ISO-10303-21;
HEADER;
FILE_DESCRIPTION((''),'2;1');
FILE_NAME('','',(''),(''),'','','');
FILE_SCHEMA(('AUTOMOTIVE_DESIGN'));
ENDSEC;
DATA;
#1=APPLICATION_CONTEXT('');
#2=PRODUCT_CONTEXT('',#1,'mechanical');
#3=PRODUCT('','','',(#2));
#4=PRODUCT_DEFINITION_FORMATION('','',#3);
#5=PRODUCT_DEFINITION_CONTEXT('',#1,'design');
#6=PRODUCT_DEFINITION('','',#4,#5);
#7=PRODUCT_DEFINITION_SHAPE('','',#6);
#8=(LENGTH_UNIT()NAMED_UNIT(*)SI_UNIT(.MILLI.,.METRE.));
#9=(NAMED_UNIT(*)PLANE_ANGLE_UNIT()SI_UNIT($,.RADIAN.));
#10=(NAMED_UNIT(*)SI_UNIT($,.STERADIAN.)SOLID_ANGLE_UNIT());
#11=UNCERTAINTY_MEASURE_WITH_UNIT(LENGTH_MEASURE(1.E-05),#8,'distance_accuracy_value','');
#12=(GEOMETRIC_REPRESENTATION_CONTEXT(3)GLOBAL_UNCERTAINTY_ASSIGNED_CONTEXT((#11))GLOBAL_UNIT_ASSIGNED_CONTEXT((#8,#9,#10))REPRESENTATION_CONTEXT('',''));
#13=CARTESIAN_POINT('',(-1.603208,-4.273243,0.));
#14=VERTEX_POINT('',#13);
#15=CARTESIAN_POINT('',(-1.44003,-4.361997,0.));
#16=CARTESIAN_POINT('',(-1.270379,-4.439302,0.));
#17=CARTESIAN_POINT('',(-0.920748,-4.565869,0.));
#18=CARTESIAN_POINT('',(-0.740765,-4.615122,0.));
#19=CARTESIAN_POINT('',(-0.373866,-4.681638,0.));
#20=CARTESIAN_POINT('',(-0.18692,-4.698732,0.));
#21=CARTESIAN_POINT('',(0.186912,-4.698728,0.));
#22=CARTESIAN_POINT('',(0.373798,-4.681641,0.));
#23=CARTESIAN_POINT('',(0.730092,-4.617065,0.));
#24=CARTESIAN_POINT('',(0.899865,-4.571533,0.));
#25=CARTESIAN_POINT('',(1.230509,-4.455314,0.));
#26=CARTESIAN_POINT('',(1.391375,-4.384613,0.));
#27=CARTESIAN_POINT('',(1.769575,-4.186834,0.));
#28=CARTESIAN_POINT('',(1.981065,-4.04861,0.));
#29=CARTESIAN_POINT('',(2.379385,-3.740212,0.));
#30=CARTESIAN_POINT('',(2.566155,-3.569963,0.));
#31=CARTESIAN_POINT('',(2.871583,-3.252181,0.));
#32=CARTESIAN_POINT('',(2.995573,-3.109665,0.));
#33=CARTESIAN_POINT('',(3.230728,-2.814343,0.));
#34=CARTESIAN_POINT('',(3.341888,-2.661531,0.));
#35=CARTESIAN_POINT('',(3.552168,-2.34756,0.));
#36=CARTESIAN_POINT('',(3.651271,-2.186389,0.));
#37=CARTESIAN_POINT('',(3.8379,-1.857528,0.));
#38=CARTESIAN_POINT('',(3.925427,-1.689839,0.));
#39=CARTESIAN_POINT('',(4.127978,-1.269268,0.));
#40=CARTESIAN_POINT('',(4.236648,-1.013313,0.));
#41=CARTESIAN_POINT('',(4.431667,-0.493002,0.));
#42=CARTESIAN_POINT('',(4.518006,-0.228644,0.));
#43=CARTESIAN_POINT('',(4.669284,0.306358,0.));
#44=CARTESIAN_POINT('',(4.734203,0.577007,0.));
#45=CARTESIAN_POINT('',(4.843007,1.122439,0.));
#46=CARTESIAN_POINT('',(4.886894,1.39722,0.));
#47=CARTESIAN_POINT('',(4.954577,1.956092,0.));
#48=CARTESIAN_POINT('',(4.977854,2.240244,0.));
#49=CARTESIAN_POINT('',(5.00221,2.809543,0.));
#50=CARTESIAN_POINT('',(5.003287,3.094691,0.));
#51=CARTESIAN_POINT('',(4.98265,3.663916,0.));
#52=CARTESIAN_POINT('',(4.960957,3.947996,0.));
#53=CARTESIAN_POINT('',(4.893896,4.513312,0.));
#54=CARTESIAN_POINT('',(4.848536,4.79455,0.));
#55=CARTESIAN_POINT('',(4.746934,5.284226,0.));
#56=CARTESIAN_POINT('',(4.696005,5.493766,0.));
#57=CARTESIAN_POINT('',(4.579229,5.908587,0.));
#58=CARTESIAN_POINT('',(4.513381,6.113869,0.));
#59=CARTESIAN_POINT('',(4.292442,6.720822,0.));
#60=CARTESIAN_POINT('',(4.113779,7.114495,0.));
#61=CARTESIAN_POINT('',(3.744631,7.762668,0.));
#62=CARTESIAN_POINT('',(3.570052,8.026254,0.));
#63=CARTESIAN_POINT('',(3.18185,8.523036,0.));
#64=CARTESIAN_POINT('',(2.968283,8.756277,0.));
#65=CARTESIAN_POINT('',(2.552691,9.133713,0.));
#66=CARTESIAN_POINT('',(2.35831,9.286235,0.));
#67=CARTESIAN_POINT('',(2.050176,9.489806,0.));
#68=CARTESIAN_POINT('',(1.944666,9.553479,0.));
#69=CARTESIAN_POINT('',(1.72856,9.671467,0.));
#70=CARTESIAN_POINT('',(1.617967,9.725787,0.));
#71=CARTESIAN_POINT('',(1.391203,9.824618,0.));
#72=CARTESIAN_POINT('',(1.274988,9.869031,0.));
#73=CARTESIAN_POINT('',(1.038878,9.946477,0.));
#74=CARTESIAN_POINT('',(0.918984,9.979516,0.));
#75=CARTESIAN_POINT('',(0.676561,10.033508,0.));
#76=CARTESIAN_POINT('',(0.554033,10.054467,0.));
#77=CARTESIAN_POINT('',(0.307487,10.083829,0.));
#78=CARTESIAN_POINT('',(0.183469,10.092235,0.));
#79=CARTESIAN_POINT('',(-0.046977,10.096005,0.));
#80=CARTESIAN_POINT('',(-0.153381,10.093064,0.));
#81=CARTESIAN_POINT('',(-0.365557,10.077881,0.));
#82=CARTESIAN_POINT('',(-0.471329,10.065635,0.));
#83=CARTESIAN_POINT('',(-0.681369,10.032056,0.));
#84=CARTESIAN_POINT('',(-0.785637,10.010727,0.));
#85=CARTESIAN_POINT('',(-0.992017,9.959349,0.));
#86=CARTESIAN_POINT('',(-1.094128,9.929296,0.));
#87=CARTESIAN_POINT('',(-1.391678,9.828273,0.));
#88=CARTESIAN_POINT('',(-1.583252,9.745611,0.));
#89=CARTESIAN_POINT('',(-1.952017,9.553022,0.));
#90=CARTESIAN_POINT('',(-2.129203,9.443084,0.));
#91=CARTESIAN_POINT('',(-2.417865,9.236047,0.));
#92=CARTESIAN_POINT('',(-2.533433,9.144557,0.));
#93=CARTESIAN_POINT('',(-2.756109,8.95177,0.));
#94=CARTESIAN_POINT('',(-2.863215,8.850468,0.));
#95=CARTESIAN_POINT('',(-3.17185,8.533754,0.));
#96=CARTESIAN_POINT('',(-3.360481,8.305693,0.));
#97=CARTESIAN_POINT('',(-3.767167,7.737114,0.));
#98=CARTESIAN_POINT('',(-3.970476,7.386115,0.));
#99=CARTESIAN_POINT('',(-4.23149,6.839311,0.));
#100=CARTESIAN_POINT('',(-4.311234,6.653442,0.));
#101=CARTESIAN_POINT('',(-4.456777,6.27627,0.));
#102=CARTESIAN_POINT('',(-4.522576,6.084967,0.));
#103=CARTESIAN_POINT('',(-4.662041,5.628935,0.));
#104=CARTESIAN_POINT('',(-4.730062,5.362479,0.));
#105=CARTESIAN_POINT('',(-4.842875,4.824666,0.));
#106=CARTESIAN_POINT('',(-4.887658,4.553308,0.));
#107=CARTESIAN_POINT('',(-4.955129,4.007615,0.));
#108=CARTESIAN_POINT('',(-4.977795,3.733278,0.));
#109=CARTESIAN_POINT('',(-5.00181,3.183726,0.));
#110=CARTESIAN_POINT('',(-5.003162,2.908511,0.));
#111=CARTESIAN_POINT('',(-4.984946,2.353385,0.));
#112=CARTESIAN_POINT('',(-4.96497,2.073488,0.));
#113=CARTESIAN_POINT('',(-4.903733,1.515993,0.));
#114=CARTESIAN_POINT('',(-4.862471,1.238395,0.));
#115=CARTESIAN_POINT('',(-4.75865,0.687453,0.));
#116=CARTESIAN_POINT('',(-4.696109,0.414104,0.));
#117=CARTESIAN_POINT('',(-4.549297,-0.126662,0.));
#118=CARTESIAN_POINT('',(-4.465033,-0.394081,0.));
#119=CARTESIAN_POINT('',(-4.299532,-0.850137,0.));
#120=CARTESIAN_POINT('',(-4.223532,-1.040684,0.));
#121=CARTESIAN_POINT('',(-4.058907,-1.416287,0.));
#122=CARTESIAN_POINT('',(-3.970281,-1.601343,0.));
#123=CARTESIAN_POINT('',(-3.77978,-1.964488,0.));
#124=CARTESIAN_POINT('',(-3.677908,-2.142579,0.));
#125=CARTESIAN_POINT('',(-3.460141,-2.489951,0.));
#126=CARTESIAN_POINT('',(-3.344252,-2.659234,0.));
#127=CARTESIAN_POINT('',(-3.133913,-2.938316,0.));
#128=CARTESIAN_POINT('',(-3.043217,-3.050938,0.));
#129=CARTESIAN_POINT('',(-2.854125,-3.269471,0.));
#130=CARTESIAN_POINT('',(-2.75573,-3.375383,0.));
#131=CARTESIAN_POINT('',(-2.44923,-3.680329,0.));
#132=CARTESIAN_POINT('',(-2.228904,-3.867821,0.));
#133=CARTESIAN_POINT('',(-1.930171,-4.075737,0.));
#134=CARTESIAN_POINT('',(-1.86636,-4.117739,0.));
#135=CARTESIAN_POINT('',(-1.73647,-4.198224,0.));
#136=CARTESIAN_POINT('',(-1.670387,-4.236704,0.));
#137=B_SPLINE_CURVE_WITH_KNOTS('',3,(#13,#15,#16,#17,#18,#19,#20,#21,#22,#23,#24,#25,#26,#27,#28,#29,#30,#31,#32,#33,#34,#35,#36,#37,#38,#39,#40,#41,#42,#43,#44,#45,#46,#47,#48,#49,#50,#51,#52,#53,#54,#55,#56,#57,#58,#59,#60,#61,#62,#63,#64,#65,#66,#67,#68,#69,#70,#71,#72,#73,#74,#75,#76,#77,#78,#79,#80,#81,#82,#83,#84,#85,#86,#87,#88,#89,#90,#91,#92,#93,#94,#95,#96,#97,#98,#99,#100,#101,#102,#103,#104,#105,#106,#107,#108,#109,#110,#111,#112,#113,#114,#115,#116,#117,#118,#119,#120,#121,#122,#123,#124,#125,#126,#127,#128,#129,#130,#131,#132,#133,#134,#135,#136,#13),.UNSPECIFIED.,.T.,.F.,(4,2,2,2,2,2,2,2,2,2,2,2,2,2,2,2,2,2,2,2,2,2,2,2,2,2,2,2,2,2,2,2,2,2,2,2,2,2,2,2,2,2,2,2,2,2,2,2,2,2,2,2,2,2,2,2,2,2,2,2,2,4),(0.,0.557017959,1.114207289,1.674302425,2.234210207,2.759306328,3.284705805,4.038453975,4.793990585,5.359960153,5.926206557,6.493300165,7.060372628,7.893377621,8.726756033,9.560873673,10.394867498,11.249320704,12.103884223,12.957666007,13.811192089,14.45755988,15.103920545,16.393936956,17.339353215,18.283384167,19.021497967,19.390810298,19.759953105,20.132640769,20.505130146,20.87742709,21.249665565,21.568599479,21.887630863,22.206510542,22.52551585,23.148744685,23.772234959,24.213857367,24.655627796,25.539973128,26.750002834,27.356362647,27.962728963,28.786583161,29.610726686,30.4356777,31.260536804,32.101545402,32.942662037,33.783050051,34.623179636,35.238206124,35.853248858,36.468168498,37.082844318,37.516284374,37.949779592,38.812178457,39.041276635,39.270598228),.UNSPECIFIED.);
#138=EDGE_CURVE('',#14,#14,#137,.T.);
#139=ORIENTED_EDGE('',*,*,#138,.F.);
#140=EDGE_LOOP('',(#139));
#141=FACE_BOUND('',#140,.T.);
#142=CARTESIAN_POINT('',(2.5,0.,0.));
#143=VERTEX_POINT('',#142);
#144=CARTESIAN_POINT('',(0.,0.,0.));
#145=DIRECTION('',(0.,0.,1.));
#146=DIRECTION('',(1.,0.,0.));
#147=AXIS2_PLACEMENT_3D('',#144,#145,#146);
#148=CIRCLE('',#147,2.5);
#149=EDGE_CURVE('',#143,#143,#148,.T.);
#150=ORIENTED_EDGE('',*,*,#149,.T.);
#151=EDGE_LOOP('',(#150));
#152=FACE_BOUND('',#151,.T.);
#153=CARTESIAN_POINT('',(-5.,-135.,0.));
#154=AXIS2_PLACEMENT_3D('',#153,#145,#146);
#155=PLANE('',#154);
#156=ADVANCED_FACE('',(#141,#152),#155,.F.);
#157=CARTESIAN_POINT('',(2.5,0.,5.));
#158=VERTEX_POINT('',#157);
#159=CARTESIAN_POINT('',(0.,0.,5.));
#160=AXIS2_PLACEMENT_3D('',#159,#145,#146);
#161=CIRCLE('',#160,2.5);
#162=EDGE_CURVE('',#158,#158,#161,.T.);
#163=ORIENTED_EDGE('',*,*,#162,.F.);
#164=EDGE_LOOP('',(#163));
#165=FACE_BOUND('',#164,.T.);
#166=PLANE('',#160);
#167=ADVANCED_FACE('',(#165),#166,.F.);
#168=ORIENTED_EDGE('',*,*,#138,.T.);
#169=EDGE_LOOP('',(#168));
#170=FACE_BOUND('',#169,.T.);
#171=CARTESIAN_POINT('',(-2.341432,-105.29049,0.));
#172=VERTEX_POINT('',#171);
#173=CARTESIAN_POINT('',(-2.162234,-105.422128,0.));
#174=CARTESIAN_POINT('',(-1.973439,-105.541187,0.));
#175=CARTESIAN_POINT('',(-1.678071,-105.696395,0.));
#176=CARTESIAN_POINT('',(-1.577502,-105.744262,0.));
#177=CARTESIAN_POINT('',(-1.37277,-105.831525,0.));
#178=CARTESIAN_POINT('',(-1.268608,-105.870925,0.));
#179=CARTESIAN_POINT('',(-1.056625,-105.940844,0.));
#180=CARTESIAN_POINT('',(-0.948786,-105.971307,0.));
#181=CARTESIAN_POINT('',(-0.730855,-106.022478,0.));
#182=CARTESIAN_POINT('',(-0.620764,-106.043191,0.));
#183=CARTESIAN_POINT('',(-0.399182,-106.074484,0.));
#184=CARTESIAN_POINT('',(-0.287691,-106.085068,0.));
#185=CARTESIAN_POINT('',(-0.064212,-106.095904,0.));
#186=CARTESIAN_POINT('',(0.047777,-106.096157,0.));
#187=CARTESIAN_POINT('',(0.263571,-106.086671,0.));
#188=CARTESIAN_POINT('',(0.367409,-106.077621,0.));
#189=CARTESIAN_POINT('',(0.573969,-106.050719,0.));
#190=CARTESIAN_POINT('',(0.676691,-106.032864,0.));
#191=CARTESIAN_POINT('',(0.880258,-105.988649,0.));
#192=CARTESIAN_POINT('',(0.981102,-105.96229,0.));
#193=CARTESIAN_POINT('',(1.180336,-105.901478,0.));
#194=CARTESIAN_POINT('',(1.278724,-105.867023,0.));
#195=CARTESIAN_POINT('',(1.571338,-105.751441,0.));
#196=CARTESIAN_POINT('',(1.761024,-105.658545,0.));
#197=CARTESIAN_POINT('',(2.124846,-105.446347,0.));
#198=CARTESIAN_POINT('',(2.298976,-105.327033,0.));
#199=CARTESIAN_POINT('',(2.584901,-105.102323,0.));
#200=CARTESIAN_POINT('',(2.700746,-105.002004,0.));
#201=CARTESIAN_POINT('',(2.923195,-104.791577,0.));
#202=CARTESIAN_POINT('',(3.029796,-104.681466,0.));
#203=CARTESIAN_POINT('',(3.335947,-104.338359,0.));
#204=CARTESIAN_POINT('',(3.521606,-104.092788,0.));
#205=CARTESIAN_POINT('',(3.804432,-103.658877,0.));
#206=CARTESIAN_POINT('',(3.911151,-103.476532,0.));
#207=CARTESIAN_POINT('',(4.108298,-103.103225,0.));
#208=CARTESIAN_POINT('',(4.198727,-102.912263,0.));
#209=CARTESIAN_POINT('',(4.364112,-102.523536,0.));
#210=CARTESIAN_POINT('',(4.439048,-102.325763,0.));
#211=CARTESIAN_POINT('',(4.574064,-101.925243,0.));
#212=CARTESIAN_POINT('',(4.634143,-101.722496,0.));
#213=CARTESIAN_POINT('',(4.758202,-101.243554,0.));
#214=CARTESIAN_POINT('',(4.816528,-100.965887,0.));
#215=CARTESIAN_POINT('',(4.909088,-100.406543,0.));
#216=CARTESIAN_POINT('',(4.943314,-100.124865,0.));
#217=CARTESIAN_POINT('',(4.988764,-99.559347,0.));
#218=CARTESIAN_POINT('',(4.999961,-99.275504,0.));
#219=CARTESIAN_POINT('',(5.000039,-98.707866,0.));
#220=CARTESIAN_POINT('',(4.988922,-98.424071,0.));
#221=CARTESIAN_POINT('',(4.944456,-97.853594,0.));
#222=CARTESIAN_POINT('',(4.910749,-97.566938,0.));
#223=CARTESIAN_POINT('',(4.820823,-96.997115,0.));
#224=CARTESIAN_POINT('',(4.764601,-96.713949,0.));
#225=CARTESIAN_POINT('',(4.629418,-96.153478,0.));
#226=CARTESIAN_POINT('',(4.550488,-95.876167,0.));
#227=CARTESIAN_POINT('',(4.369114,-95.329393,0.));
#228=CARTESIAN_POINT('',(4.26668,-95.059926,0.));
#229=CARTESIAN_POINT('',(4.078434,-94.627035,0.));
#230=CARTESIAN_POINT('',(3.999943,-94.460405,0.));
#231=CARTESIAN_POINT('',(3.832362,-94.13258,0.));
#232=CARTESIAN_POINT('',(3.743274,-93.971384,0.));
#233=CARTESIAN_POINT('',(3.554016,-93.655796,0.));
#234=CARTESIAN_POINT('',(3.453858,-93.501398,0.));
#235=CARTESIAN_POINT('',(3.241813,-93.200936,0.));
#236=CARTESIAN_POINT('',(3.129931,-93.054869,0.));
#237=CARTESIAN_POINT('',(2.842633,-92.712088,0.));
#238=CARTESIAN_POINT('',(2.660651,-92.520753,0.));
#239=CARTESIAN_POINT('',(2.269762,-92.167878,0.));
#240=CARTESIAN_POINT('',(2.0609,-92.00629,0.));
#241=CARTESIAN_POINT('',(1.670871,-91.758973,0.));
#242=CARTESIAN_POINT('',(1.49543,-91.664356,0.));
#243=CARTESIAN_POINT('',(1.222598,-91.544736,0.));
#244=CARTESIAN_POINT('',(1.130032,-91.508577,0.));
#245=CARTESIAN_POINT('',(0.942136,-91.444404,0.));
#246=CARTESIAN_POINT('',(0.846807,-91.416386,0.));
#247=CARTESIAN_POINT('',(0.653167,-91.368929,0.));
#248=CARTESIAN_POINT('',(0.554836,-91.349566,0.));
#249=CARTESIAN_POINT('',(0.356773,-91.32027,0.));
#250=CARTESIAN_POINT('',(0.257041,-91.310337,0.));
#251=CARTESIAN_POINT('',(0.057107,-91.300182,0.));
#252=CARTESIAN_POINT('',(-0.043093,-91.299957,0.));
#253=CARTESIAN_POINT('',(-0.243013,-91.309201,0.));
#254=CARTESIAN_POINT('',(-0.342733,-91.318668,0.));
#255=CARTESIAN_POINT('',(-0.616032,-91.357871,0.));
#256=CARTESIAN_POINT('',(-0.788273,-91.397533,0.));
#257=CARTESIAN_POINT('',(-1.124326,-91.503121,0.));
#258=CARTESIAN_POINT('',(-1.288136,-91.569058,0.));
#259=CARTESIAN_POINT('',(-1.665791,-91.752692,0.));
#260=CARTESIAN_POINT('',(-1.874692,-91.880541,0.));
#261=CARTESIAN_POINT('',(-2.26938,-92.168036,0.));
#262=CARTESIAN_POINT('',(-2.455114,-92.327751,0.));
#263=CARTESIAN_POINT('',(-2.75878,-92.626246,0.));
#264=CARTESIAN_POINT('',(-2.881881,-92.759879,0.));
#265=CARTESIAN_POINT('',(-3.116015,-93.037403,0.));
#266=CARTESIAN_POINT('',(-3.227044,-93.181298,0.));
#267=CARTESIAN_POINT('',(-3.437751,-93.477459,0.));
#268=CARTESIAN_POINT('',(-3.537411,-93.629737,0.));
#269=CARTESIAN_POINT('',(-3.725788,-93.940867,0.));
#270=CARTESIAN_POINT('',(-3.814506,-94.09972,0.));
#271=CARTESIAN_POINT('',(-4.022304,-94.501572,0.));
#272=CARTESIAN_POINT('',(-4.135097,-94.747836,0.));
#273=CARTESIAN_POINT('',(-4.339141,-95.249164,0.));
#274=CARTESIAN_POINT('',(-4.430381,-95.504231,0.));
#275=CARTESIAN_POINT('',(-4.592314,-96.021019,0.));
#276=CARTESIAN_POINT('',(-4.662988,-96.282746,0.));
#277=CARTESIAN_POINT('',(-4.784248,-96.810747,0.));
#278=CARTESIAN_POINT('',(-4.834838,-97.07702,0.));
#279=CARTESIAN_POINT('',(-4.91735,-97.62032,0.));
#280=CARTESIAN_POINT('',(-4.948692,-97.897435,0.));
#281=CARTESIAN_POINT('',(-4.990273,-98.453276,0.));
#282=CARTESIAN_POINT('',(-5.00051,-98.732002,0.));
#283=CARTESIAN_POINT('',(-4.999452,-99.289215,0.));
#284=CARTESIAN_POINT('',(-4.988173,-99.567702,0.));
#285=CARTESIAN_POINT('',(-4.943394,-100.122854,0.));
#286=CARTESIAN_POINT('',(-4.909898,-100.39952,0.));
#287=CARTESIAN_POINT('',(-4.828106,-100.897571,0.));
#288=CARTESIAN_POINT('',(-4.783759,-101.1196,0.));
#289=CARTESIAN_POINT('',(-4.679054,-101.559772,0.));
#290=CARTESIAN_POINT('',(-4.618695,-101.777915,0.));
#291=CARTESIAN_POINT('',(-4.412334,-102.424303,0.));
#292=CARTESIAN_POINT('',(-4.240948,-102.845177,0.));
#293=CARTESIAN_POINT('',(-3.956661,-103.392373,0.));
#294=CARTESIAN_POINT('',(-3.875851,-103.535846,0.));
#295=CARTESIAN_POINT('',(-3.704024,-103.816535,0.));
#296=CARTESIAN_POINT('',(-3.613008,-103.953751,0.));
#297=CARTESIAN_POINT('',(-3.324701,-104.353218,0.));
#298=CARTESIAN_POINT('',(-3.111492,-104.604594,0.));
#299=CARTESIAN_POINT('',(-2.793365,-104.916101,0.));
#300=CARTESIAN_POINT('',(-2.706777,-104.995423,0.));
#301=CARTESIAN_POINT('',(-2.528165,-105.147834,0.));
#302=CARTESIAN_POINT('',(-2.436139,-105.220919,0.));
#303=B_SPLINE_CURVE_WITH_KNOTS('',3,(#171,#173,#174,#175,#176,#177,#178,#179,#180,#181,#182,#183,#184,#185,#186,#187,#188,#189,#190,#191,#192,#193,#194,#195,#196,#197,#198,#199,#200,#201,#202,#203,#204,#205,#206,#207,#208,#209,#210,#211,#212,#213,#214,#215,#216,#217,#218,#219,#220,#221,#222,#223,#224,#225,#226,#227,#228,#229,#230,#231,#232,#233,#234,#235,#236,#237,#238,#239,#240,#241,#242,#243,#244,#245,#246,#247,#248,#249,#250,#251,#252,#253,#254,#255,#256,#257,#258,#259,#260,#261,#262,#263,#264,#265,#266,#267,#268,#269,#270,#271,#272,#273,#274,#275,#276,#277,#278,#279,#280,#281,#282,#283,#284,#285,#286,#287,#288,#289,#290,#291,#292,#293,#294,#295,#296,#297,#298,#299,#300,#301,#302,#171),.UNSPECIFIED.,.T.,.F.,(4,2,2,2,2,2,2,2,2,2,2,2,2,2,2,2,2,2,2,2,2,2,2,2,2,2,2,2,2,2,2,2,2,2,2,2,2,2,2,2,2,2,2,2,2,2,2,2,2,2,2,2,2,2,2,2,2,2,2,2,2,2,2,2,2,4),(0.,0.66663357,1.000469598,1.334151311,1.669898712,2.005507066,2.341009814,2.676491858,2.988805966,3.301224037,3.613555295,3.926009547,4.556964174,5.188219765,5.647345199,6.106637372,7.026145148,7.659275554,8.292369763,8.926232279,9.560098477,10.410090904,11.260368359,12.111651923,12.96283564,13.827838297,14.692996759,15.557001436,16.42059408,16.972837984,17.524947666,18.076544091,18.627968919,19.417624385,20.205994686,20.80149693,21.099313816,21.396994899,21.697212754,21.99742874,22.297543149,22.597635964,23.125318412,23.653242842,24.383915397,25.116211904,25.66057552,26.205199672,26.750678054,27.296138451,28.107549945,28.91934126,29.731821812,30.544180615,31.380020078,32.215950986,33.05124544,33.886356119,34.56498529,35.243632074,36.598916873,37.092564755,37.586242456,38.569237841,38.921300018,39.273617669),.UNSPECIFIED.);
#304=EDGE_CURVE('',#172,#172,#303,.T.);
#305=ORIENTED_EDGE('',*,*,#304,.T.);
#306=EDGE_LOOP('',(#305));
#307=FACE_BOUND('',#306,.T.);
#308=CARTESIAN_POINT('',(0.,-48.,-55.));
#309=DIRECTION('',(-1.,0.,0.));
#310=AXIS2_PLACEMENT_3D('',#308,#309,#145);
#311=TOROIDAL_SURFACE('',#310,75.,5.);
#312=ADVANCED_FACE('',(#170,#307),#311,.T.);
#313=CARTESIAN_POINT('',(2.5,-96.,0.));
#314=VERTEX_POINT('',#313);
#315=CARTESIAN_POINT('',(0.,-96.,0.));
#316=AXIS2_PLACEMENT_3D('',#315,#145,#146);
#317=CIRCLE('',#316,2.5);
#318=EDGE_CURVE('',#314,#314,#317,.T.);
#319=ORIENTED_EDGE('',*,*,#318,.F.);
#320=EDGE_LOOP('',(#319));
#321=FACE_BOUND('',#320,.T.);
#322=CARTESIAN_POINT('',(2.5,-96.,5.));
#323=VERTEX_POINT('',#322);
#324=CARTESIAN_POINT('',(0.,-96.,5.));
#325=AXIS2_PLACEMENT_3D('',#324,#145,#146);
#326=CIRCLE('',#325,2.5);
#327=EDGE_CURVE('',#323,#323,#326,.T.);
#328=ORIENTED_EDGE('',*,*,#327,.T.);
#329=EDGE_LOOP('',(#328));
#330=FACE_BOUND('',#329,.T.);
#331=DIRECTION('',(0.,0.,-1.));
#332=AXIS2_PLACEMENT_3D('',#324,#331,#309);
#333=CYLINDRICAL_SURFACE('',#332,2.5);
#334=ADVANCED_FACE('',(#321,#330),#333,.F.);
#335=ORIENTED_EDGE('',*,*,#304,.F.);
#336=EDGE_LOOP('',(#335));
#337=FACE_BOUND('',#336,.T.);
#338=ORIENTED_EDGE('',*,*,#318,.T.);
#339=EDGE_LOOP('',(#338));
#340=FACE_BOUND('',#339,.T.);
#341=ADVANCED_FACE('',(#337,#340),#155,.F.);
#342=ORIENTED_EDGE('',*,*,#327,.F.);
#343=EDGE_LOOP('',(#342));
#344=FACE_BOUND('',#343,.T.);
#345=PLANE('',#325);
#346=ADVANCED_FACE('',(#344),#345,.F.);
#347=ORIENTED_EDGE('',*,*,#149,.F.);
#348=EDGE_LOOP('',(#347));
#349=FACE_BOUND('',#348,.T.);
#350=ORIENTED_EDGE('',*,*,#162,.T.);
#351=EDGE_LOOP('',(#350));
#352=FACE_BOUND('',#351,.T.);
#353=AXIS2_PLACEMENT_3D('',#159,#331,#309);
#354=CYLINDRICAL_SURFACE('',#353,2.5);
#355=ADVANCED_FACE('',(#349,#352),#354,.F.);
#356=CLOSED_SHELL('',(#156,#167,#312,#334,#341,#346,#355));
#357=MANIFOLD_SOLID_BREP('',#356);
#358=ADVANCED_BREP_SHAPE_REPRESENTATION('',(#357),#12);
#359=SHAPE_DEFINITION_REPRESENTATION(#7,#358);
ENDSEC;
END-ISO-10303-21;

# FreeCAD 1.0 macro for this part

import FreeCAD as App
import Part
import Sketcher
from FreeCAD import Vector
Q = App.Units.Quantity


def add_polygon(sketch, points):
    """Adds a closed chain of lines whose ends are joined by coincident constraints."""
    first, n = sketch.GeometryCount, len(points)
    for a, b in zip(points, points[1:] + points[:1]):
        sketch.addGeometry(Part.LineSegment(App.Vector(*a, 0), App.Vector(*b, 0)), False)
    for i in range(n):
        sketch.addConstraint(Sketcher.Constraint("Coincident", first + i, 2, first + (i + 1) % n, 1))

doc = App.newDocument("Part")
body = doc.addObject("PartDesign::Body", "Body")

# Sketch on XZ plane
sketch1 = body.newObject("Sketcher::SketchObject", "Sketch")
sketch1.AttachmentSupport = (doc.getObject("XZ_Plane"), [""])
sketch1.MapMode = "FlatFace"
sketch1.AttachmentOffset = App.Placement(Vector(0, 0, 48), App.Rotation())
sketch1.addGeometry(Part.Circle(Vector(0, 20, 0), Vector(0, 0, 1), 5), False)
sketch1.addGeometry(Part.LineSegment(Vector(0, -55, 0), Vector(10, -55, 0)), True)  # axis
sketch1.addConstraint(Sketcher.Constraint("Horizontal", 1))
sketch1.addConstraint(Sketcher.Constraint("PointOnObject", 0, 3, -2))
sketch1.addConstraint(Sketcher.Constraint("PointOnObject", 1, 1, -2))
sketch1.addConstraint(Sketcher.Constraint("Diameter", 0, Q("10 mm")))
sketch1.addConstraint(Sketcher.Constraint("DistanceX", 1, 1, 1, 2, Q("10 mm")))
sketch1.addConstraint(Sketcher.Constraint("DistanceY", -1, 1, 0, 3, Q("20 mm")))
sketch1.addConstraint(Sketcher.Constraint("DistanceY", 1, 1, -1, 1, Q("55 mm")))
revolution = body.newObject("PartDesign::Revolution", "Revolution")
revolution.Profile = sketch1
revolution.ReferenceAxis = (sketch1, ["Axis0"])
revolution.Angle = 360

# Sketch on YZ plane
sketch2 = body.newObject("Sketcher::SketchObject", "Sketch001")
sketch2.AttachmentSupport = (doc.getObject("YZ_Plane"), [""])
sketch2.MapMode = "FlatFace"
add_polygon(sketch2, [(35, 0), (-135, 0), (-135, -140), (35, -140)])  # lines 0-3
sketch2.addConstraint(Sketcher.Constraint("Horizontal", 0))
sketch2.addConstraint(Sketcher.Constraint("Vertical", 1))
sketch2.addConstraint(Sketcher.Constraint("Horizontal", 2))
sketch2.addConstraint(Sketcher.Constraint("Vertical", 3))
sketch2.addConstraint(Sketcher.Constraint("PointOnObject", 0, 2, -1))
sketch2.addConstraint(Sketcher.Constraint("DistanceX", 0, 2, 0, 1, Q("170 mm")))
sketch2.addConstraint(Sketcher.Constraint("DistanceY", 1, 2, 1, 1, Q("140 mm")))
sketch2.addConstraint(Sketcher.Constraint("DistanceX", 0, 2, -1, 1, Q("135 mm")))
pocket1 = body.newObject("PartDesign::Pocket", "Pocket")
pocket1.Profile = sketch2
pocket1.Type = "ThroughAll"
pocket1.Midplane = True

# Sketch on XY plane
sketch3 = body.newObject("Sketcher::SketchObject", "Sketch002")
sketch3.AttachmentSupport = (doc.getObject("XY_Plane"), [""])
sketch3.MapMode = "FlatFace"
sketch3.addGeometry(Part.Circle(Vector(0, 0, 0), Vector(0, 0, 1), 2.5), False)
sketch3.addGeometry(Part.Circle(Vector(0, -96, 0), Vector(0, 0, 1), 2.5), False)
sketch3.addConstraint(Sketcher.Constraint("Coincident", 0, 3, -1, 1))
sketch3.addConstraint(Sketcher.Constraint("Equal", 0, 1))
sketch3.addConstraint(Sketcher.Constraint("PointOnObject", 1, 3, -2))
sketch3.addConstraint(Sketcher.Constraint("Diameter", 0, Q("5 mm")))
sketch3.addConstraint(Sketcher.Constraint("DistanceY", 1, 3, -1, 1, Q("96 mm")))
pocket2 = body.newObject("PartDesign::Pocket", "Pocket001")
pocket2.Profile = sketch3
pocket2.Length = 5
pocket2.Reversed = True

doc.recompute()
